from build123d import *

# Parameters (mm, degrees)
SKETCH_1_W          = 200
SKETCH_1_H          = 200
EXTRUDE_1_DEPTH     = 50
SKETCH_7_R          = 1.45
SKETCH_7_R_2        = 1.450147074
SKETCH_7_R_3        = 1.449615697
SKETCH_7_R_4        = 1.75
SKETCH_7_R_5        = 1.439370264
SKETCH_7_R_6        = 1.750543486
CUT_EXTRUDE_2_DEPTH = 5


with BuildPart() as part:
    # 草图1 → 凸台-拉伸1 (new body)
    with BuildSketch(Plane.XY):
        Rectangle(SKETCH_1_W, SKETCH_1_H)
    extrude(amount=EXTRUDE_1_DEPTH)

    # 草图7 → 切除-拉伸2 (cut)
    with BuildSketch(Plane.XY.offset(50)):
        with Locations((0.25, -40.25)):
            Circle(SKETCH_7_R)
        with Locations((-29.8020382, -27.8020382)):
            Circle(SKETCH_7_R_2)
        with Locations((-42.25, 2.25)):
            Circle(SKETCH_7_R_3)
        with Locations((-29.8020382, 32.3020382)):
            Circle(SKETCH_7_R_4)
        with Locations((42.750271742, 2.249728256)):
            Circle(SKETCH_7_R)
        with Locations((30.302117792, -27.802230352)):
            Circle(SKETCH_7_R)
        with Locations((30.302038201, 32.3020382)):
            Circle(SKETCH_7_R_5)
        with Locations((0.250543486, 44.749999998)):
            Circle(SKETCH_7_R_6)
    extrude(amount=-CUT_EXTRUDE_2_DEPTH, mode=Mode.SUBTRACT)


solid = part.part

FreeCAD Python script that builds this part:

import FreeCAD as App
import Part
import Sketcher

V = App.Vector
Q = App.Units.Quantity


def add_polygon(sketch, points):
    """Adds a closed chain of lines whose ends are joined by coincident constraints."""
    first, n = sketch.GeometryCount, len(points)
    for a, b in zip(points, points[1:] + points[:1]):
        sketch.addGeometry(Part.LineSegment(App.Vector(*a, 0), App.Vector(*b, 0)), False)
    for i in range(n):
        sketch.addConstraint(Sketcher.Constraint("Coincident", first + i, 2, first + (i + 1) % n, 1))

doc = App.newDocument("Part")
body = doc.addObject("PartDesign::Body", "Body")

# Sketch on XY plane
sketch1 = doc.addObject("Sketcher::SketchObject", "Sketch")
body.addObject(sketch1)
sketch1.AttachmentSupport = (doc.XY_Plane, [""])
sketch1.MapMode = "FlatFace"
add_polygon(sketch1, [(-100, 100), (-100, -100), (100, -100), (100, 100)])  # lines 0-3
sketch1.addConstraint([
    Sketcher.Constraint("Vertical", 0),
    Sketcher.Constraint("Horizontal", 1),
    Sketcher.Constraint("Vertical", 2),
    Sketcher.Constraint("Horizontal", 3),
    Sketcher.Constraint("Symmetric", 0, 2, 2, 2, -1, 1),
    Sketcher.Constraint("Equal", 3, 0),
    Sketcher.Constraint("DistanceX", 1, 1, 1, 2, Q("200 mm")),
])
pad1 = doc.addObject("PartDesign::Pad", "Pad")
body.addObject(pad1)
pad1.Profile = sketch1
pad1.Length = 50

# Sketch on XY plane
sketch2 = doc.addObject("Sketcher::SketchObject", "Sketch001")
body.addObject(sketch2)
sketch2.AttachmentSupport = (doc.XY_Plane, [""])
sketch2.MapMode = "FlatFace"
sketch2.AttachmentOffset = App.Placement(V(0, 0, 50), App.Rotation())
sketch2.addGeometry([
    Part.Circle(V(0.2, -40.2, 0), V(0, 0, 1), 1.4),  # 0
    Part.Circle(V(-29.8, -27.8, 0), V(0, 0, 1), 1.5),  # 1
    Part.Circle(V(-42.2, 2.2, 0), V(0, 0, 1), 1.4),  # 2
    Part.Circle(V(-29.8, 32.3, 0), V(0, 0, 1), 1.8),  # 3
    Part.Circle(V(42.8, 2.2, 0), V(0, 0, 1), 1.4),  # 4
    Part.Circle(V(30.3, -27.8, 0), V(0, 0, 1), 1.4),  # 5
    Part.Circle(V(30.3, 32.3, 0), V(0, 0, 1), 1.4),  # 6
    Part.Circle(V(0.3, 44.7, 0), V(0, 0, 1), 1.8),  # 7
], False)
sketch2.addConstraint([
    Sketcher.Constraint("Equal", 0, 4),
    Sketcher.Constraint("Equal", 4, 5),
    Sketcher.Constraint("Horizontal", 3, 3, 6, 3),
    Sketcher.Constraint("Vertical", 1, 3, 3, 3),
    Sketcher.Constraint("Diameter", 0, Q("2.9 mm")),
    Sketcher.Constraint("Diameter", 3, Q("3.5 mm")),
    Sketcher.Constraint("DistanceX", 2, 3, 0, 3, Q("42.5 mm")),
    Sketcher.Constraint("DistanceY", 0, 3, 2, 3, Q("42.5 mm")),
    Sketcher.Constraint("DistanceY", 2, 3, 7, 3, Q("42.5 mm")),
    Sketcher.Constraint("Diameter", 2, Q("2.899231 mm")),
    Sketcher.Constraint("Diameter", 6, Q("2.878741 mm")),
    Sketcher.Constraint("DistanceX", -1, 1, 0, 3, Q("0.25 mm")),
    Sketcher.Constraint("DistanceY", 0, 3, -1, 1, Q("40.25 mm")),
    Sketcher.Constraint("Diameter", 1, Q("2.900294 mm")),
    Sketcher.Constraint("Diameter", 7, Q("3.501087 mm")),
    Sketcher.Constraint("DistanceX", 1, 3, -1, 1, Q("29.802038 mm")),
    Sketcher.Constraint("DistanceY", 1, 3, -1, 1, Q("27.802038 mm")),
    Sketcher.Constraint("DistanceY", -1, 1, 3, 3, Q("32.302038 mm")),
    Sketcher.Constraint("DistanceX", -1, 1, 4, 3, Q("42.750272 mm")),
    Sketcher.Constraint("DistanceY", -1, 1, 4, 3, Q("2.249728 mm")),
    Sketcher.Constraint("DistanceY", 5, 3, -1, 1, Q("27.80223 mm")),
    Sketcher.Constraint("DistanceX", -1, 1, 6, 3, Q("30.302038 mm")),
    Sketcher.Constraint("DistanceX", 3, 3, 7, 3, Q("30.052582 mm")),
    Sketcher.Constraint("DistanceX", -1, 1, 5, 3, Q("30.302118 mm")),
])
pocket1 = doc.addObject("PartDesign::Pocket", "Pocket")
body.addObject(pocket1)
pocket1.Profile = sketch2
pocket1.Length = 5

doc.recompute()
